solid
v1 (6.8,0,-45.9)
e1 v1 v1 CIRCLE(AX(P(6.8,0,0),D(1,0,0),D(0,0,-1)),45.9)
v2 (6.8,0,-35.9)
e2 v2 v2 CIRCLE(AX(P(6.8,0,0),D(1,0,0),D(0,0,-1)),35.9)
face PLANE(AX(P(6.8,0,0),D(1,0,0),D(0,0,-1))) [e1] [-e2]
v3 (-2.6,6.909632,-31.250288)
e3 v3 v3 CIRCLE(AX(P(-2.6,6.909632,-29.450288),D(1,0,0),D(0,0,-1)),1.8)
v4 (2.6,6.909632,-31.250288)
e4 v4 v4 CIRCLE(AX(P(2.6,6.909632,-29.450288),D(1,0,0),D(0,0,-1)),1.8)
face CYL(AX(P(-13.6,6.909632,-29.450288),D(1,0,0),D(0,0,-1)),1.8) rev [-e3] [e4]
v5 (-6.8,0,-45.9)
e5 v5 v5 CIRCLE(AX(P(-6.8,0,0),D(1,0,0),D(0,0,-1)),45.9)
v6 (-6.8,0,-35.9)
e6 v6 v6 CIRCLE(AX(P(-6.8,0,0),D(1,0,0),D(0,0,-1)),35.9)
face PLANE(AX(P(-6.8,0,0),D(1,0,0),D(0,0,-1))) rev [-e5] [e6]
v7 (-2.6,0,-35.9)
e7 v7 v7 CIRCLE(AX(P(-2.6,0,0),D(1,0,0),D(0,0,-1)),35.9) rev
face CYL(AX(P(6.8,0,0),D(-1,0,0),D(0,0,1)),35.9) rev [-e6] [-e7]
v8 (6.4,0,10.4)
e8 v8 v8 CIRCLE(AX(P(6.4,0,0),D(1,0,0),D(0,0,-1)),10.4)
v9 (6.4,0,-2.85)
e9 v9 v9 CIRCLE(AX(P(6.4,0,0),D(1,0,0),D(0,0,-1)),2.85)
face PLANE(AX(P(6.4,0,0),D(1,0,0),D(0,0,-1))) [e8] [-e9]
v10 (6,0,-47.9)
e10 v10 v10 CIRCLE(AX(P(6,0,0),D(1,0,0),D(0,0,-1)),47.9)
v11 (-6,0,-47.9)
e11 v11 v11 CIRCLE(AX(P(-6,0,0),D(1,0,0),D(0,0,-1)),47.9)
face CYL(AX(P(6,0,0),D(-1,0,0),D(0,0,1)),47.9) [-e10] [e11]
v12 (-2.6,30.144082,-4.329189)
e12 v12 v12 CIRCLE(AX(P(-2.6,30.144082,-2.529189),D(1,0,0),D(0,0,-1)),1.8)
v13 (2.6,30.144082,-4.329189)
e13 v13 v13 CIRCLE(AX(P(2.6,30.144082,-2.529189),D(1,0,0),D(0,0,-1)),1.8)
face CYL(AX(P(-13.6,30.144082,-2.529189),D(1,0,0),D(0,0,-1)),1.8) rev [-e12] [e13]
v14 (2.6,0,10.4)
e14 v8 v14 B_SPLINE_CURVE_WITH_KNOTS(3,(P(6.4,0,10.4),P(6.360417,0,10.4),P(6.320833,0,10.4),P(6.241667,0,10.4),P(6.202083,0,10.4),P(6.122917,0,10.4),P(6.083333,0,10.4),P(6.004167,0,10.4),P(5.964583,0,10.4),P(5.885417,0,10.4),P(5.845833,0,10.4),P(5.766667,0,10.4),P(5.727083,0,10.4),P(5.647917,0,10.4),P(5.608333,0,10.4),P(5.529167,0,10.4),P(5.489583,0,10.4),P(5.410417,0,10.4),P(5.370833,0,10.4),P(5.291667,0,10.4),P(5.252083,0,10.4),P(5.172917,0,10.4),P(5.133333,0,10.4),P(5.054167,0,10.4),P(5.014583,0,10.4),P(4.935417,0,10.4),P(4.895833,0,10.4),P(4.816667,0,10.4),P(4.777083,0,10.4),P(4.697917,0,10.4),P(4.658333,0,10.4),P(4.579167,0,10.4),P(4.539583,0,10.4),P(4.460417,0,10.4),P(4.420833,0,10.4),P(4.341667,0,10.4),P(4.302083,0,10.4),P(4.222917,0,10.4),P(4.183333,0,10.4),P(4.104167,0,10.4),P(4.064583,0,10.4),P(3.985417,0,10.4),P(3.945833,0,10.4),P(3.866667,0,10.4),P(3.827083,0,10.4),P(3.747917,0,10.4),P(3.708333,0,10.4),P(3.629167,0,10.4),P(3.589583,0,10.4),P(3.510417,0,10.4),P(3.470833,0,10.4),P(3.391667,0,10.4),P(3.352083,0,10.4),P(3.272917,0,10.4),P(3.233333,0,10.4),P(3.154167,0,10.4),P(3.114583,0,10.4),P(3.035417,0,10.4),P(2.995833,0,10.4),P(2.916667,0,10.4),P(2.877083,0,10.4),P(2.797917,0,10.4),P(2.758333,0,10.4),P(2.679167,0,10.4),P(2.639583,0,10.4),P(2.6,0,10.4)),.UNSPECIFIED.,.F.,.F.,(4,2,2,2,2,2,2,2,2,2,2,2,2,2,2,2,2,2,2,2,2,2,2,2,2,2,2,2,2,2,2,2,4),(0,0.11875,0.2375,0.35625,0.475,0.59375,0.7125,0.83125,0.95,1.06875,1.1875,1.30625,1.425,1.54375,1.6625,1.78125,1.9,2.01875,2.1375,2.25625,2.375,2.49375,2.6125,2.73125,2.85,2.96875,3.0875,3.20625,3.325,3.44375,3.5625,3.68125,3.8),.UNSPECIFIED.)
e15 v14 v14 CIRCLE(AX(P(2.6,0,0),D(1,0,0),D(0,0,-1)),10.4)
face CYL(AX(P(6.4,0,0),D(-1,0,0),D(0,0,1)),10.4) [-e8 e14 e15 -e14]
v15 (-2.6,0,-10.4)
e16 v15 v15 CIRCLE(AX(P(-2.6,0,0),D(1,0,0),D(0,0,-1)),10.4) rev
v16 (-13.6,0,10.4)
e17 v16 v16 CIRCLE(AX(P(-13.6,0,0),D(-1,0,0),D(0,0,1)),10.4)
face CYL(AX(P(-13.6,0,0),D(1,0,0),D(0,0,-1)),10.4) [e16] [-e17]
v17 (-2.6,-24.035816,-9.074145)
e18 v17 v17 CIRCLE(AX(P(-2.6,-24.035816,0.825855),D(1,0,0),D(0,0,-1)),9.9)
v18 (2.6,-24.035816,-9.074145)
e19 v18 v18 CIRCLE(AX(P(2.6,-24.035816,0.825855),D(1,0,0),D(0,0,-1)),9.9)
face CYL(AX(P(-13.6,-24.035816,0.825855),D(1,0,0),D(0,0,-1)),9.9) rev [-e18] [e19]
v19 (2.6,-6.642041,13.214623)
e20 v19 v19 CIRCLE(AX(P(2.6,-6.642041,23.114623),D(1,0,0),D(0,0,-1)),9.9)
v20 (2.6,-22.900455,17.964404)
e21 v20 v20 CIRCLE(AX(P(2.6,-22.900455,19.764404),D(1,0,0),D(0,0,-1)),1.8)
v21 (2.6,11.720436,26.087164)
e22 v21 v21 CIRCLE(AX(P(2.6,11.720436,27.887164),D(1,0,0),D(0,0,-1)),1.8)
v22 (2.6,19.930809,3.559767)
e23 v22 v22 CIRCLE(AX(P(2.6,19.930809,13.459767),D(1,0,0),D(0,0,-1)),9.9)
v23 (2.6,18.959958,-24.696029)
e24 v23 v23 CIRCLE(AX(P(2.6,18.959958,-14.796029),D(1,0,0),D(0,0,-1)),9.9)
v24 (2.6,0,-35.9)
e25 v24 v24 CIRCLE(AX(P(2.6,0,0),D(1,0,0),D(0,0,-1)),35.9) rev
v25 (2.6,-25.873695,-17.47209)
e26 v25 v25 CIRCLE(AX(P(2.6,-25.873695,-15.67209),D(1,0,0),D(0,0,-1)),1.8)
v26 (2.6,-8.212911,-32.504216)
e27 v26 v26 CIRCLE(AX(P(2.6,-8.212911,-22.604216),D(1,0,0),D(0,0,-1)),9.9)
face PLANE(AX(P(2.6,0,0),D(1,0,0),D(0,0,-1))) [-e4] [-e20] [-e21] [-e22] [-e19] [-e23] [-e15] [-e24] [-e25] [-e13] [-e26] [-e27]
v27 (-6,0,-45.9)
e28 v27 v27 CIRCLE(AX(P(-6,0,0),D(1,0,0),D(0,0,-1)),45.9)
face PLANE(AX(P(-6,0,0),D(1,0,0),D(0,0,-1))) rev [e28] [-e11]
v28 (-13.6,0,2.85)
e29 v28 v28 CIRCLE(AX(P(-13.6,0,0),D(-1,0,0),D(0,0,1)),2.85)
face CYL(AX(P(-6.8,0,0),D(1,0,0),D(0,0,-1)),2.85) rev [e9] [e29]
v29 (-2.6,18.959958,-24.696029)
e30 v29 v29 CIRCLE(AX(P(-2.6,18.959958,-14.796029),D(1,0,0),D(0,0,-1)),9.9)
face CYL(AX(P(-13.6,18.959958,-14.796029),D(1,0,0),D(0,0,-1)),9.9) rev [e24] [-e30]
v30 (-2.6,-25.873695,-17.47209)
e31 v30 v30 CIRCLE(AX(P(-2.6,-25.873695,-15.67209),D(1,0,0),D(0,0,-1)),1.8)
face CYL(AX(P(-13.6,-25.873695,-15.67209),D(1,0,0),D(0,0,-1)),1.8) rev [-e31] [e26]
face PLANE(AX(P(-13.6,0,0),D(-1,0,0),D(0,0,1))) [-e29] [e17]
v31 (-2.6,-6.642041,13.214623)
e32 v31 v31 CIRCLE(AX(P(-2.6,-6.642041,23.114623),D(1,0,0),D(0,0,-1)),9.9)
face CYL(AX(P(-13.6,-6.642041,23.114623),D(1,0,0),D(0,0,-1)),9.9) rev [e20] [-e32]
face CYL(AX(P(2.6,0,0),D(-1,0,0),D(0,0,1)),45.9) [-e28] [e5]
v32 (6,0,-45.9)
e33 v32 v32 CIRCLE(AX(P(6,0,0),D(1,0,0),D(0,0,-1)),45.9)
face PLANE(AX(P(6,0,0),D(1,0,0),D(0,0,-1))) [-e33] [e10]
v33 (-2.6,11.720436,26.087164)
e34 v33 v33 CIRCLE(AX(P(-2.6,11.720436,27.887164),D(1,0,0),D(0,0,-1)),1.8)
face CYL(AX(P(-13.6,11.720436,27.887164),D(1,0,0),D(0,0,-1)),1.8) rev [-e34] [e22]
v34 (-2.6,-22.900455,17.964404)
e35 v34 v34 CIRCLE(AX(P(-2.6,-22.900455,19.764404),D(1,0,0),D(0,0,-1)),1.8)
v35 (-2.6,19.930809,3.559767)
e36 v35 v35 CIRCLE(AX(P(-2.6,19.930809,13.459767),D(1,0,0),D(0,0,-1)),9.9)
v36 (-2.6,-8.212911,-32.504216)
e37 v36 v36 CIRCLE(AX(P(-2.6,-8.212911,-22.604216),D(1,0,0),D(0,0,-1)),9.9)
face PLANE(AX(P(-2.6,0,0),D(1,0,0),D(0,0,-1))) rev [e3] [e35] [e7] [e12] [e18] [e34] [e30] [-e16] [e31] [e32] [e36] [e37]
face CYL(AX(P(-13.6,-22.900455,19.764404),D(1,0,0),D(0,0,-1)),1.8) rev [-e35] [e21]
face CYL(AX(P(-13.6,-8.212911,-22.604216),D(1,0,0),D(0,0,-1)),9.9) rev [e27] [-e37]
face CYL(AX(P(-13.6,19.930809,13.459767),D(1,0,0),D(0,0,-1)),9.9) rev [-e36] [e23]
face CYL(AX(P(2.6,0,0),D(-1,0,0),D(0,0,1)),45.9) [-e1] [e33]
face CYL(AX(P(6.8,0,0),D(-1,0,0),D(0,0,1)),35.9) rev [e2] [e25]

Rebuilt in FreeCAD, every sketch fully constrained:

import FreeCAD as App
import Part
import Sketcher
from FreeCAD import Vector
Q = App.Units.Quantity

doc = App.newDocument("Part")
body = doc.addObject("PartDesign::Body", "Body")

# Sketch on YZ plane
sketch1 = body.newObject("Sketcher::SketchObject", "Sketch")
sketch1.AttachmentSupport = (doc.getObject("YZ_Plane"), [""])
sketch1.MapMode = "FlatFace"
sketch1.addGeometry(Part.Circle(Vector(0, 0, 0), Vector(0, 0, 1), 46), False)
sketch1.addConstraint(Sketcher.Constraint("Coincident", 0, 3, -1, 1))
sketch1.addConstraint(Sketcher.Constraint("Diameter", 0, Q("91.8 mm")))
pad1 = body.newObject("PartDesign::Pad", "Pad")
pad1.Profile = sketch1
pad1.Length = 5.2
pad1.Midplane = True

# Sketch on YZ plane
sketch2 = body.newObject("Sketcher::SketchObject", "Sketch001")
sketch2.AttachmentSupport = (doc.getObject("YZ_Plane"), [""])
sketch2.MapMode = "FlatFace"
sketch2.addGeometry(Part.Circle(Vector(0, 0, 0), Vector(0, 0, 1), 46), False)
sketch2.addGeometry(Part.Circle(Vector(0, 0, 0), Vector(0, 0, 1), 36), False)
sketch2.addConstraint(Sketcher.Constraint("Coincident", 0, 3, -1, 1))
sketch2.addConstraint(Sketcher.Constraint("Coincident", 1, 3, -1, 1))
sketch2.addConstraint(Sketcher.Constraint("Diameter", 0, Q("91.8 mm")))
sketch2.addConstraint(Sketcher.Constraint("Diameter", 1, Q("71.8 mm")))
pad2 = body.newObject("PartDesign::Pad", "Pad001")
pad2.Profile = sketch2
pad2.Length = 13.6
pad2.Midplane = True

# Sketch on YZ plane
sketch3 = body.newObject("Sketcher::SketchObject", "Sketch002")
sketch3.AttachmentSupport = (doc.getObject("YZ_Plane"), [""])
sketch3.MapMode = "FlatFace"
sketch3.addGeometry(Part.Circle(Vector(0, 0, 0), Vector(0, 0, 1), 2.9), False)
sketch3.addConstraint(Sketcher.Constraint("Coincident", 0, 3, -1, 1))
sketch3.addConstraint(Sketcher.Constraint("Diameter", 0, Q("5.7 mm")))
pocket1 = body.newObject("PartDesign::Pocket", "Pocket")
pocket1.Profile = sketch3
pocket1.Length = 13.6
pocket1.Midplane = True

# Sketch on YZ plane
sketch4 = body.newObject("Sketcher::SketchObject", "Sketch003")
sketch4.AttachmentSupport = (doc.getObject("YZ_Plane"), [""])
sketch4.MapMode = "FlatFace"
sketch4.AttachmentOffset = App.Placement(Vector(0, 0, -2.6), App.Rotation())
sketch4.addGeometry(Part.Circle(Vector(0, 0, 0), Vector(0, 0, 1), 10.4), False)
sketch4.addGeometry(Part.Circle(Vector(0, 0, 0), Vector(0, 0, 1), 2.9), False)
sketch4.addConstraint(Sketcher.Constraint("Coincident", 0, 3, -1, 1))
sketch4.addConstraint(Sketcher.Constraint("Coincident", 1, 3, -1, 1))
sketch4.addConstraint(Sketcher.Constraint("Diameter", 0, Q("20.8 mm")))
sketch4.addConstraint(Sketcher.Constraint("Diameter", 1, Q("5.7 mm")))
pad3 = body.newObject("PartDesign::Pad", "Pad002")
pad3.Profile = sketch4
pad3.Length = 11
pad3.Reversed = True

# Sketch on YZ plane
sketch5 = body.newObject("Sketcher::SketchObject", "Sketch004")
sketch5.AttachmentSupport = (doc.getObject("YZ_Plane"), [""])
sketch5.MapMode = "FlatFace"
sketch5.AttachmentOffset = App.Placement(Vector(0, 0, 2.6), App.Rotation())
sketch5.addGeometry(Part.Circle(Vector(0, 0, 0), Vector(0, 0, 1), 10.4), False)
sketch5.addGeometry(Part.Circle(Vector(0, 0, 0), Vector(0, 0, 1), 2.9), False)
sketch5.addConstraint(Sketcher.Constraint("Coincident", 0, 3, -1, 1))
sketch5.addConstraint(Sketcher.Constraint("Coincident", 1, 3, -1, 1))
sketch5.addConstraint(Sketcher.Constraint("Diameter", 0, Q("20.8 mm")))
sketch5.addConstraint(Sketcher.Constraint("Diameter", 1, Q("5.7 mm")))
pad4 = body.newObject("PartDesign::Pad", "Pad003")
pad4.Profile = sketch5
pad4.Length = 3.8

# Sketch on YZ plane
sketch6 = body.newObject("Sketcher::SketchObject", "Sketch005")
sketch6.AttachmentSupport = (doc.getObject("YZ_Plane"), [""])
sketch6.MapMode = "FlatFace"
sketch6.addGeometry(Part.Circle(Vector(20, 13, 0), Vector(0, 0, 1), 10), False)
sketch6.addConstraint(Sketcher.Constraint("Diameter", 0, Q("19.8 mm")))
sketch6.addConstraint(Sketcher.Constraint("DistanceX", -1, 1, 0, 3, Q("19.930809 mm")))
sketch6.addConstraint(Sketcher.Constraint("DistanceY", -1, 1, 0, 3, Q("13.459767 mm")))
pocket2 = body.newObject("PartDesign::Pocket", "Pocket001")
pocket2.Profile = sketch6
pocket2.Length = 134.643583
pocket2.Midplane = True
doc.recompute()

polarpattern = body.newObject("PartDesign::PolarPattern", "PolarPattern")
polarpattern.Originals = [pocket2]
polarpattern.Axis = (doc.getObject("X_Axis"), [""])
polarpattern.Angle = 360
polarpattern.Occurrences = 5
body.Tip = polarpattern

# Sketch on YZ plane
sketch7 = body.newObject("Sketcher::SketchObject", "Sketch006")
sketch7.AttachmentSupport = (doc.getObject("YZ_Plane"), [""])
sketch7.MapMode = "FlatFace"
sketch7.addGeometry(Part.Circle(Vector(11.7, 27.9, 0), Vector(0, 0, 1), 1.8), False)
sketch7.addConstraint(Sketcher.Constraint("Diameter", 0, Q("3.6 mm")))
sketch7.addConstraint(Sketcher.Constraint("DistanceX", -1, 1, 0, 3, Q("11.720436 mm")))
sketch7.addConstraint(Sketcher.Constraint("DistanceY", -1, 1, 0, 3, Q("27.887164 mm")))
pocket3 = body.newObject("PartDesign::Pocket", "Pocket002")
pocket3.Profile = sketch7
pocket3.Length = 134.643583
pocket3.Midplane = True
doc.recompute()

polarpattern2 = body.newObject("PartDesign::PolarPattern", "PolarPattern001")
polarpattern2.Originals = [pocket3]
polarpattern2.Axis = (doc.getObject("X_Axis"), [""])
polarpattern2.Angle = 360
polarpattern2.Occurrences = 5
body.Tip = polarpattern2

# Sketch on YZ plane
sketch8 = body.newObject("Sketcher::SketchObject", "Sketch007")
sketch8.AttachmentSupport = (doc.getObject("YZ_Plane"), [""])
sketch8.MapMode = "FlatFace"
sketch8.addGeometry(Part.Circle(Vector(0, 0, 0), Vector(0, 0, 1), 48), False)
sketch8.addGeometry(Part.Circle(Vector(0, 0, 0), Vector(0, 0, 1), 46), False)
sketch8.addConstraint(Sketcher.Constraint("Coincident", 0, 3, -1, 1))
sketch8.addConstraint(Sketcher.Constraint("Coincident", 1, 3, -1, 1))
sketch8.addConstraint(Sketcher.Constraint("Diameter", 0, Q("95.8 mm")))
sketch8.addConstraint(Sketcher.Constraint("Diameter", 1, Q("91.8 mm")))
pad5 = body.newObject("PartDesign::Pad", "Pad004")
pad5.Profile = sketch8
pad5.Length = 12
pad5.Midplane = True

doc.recompute()
